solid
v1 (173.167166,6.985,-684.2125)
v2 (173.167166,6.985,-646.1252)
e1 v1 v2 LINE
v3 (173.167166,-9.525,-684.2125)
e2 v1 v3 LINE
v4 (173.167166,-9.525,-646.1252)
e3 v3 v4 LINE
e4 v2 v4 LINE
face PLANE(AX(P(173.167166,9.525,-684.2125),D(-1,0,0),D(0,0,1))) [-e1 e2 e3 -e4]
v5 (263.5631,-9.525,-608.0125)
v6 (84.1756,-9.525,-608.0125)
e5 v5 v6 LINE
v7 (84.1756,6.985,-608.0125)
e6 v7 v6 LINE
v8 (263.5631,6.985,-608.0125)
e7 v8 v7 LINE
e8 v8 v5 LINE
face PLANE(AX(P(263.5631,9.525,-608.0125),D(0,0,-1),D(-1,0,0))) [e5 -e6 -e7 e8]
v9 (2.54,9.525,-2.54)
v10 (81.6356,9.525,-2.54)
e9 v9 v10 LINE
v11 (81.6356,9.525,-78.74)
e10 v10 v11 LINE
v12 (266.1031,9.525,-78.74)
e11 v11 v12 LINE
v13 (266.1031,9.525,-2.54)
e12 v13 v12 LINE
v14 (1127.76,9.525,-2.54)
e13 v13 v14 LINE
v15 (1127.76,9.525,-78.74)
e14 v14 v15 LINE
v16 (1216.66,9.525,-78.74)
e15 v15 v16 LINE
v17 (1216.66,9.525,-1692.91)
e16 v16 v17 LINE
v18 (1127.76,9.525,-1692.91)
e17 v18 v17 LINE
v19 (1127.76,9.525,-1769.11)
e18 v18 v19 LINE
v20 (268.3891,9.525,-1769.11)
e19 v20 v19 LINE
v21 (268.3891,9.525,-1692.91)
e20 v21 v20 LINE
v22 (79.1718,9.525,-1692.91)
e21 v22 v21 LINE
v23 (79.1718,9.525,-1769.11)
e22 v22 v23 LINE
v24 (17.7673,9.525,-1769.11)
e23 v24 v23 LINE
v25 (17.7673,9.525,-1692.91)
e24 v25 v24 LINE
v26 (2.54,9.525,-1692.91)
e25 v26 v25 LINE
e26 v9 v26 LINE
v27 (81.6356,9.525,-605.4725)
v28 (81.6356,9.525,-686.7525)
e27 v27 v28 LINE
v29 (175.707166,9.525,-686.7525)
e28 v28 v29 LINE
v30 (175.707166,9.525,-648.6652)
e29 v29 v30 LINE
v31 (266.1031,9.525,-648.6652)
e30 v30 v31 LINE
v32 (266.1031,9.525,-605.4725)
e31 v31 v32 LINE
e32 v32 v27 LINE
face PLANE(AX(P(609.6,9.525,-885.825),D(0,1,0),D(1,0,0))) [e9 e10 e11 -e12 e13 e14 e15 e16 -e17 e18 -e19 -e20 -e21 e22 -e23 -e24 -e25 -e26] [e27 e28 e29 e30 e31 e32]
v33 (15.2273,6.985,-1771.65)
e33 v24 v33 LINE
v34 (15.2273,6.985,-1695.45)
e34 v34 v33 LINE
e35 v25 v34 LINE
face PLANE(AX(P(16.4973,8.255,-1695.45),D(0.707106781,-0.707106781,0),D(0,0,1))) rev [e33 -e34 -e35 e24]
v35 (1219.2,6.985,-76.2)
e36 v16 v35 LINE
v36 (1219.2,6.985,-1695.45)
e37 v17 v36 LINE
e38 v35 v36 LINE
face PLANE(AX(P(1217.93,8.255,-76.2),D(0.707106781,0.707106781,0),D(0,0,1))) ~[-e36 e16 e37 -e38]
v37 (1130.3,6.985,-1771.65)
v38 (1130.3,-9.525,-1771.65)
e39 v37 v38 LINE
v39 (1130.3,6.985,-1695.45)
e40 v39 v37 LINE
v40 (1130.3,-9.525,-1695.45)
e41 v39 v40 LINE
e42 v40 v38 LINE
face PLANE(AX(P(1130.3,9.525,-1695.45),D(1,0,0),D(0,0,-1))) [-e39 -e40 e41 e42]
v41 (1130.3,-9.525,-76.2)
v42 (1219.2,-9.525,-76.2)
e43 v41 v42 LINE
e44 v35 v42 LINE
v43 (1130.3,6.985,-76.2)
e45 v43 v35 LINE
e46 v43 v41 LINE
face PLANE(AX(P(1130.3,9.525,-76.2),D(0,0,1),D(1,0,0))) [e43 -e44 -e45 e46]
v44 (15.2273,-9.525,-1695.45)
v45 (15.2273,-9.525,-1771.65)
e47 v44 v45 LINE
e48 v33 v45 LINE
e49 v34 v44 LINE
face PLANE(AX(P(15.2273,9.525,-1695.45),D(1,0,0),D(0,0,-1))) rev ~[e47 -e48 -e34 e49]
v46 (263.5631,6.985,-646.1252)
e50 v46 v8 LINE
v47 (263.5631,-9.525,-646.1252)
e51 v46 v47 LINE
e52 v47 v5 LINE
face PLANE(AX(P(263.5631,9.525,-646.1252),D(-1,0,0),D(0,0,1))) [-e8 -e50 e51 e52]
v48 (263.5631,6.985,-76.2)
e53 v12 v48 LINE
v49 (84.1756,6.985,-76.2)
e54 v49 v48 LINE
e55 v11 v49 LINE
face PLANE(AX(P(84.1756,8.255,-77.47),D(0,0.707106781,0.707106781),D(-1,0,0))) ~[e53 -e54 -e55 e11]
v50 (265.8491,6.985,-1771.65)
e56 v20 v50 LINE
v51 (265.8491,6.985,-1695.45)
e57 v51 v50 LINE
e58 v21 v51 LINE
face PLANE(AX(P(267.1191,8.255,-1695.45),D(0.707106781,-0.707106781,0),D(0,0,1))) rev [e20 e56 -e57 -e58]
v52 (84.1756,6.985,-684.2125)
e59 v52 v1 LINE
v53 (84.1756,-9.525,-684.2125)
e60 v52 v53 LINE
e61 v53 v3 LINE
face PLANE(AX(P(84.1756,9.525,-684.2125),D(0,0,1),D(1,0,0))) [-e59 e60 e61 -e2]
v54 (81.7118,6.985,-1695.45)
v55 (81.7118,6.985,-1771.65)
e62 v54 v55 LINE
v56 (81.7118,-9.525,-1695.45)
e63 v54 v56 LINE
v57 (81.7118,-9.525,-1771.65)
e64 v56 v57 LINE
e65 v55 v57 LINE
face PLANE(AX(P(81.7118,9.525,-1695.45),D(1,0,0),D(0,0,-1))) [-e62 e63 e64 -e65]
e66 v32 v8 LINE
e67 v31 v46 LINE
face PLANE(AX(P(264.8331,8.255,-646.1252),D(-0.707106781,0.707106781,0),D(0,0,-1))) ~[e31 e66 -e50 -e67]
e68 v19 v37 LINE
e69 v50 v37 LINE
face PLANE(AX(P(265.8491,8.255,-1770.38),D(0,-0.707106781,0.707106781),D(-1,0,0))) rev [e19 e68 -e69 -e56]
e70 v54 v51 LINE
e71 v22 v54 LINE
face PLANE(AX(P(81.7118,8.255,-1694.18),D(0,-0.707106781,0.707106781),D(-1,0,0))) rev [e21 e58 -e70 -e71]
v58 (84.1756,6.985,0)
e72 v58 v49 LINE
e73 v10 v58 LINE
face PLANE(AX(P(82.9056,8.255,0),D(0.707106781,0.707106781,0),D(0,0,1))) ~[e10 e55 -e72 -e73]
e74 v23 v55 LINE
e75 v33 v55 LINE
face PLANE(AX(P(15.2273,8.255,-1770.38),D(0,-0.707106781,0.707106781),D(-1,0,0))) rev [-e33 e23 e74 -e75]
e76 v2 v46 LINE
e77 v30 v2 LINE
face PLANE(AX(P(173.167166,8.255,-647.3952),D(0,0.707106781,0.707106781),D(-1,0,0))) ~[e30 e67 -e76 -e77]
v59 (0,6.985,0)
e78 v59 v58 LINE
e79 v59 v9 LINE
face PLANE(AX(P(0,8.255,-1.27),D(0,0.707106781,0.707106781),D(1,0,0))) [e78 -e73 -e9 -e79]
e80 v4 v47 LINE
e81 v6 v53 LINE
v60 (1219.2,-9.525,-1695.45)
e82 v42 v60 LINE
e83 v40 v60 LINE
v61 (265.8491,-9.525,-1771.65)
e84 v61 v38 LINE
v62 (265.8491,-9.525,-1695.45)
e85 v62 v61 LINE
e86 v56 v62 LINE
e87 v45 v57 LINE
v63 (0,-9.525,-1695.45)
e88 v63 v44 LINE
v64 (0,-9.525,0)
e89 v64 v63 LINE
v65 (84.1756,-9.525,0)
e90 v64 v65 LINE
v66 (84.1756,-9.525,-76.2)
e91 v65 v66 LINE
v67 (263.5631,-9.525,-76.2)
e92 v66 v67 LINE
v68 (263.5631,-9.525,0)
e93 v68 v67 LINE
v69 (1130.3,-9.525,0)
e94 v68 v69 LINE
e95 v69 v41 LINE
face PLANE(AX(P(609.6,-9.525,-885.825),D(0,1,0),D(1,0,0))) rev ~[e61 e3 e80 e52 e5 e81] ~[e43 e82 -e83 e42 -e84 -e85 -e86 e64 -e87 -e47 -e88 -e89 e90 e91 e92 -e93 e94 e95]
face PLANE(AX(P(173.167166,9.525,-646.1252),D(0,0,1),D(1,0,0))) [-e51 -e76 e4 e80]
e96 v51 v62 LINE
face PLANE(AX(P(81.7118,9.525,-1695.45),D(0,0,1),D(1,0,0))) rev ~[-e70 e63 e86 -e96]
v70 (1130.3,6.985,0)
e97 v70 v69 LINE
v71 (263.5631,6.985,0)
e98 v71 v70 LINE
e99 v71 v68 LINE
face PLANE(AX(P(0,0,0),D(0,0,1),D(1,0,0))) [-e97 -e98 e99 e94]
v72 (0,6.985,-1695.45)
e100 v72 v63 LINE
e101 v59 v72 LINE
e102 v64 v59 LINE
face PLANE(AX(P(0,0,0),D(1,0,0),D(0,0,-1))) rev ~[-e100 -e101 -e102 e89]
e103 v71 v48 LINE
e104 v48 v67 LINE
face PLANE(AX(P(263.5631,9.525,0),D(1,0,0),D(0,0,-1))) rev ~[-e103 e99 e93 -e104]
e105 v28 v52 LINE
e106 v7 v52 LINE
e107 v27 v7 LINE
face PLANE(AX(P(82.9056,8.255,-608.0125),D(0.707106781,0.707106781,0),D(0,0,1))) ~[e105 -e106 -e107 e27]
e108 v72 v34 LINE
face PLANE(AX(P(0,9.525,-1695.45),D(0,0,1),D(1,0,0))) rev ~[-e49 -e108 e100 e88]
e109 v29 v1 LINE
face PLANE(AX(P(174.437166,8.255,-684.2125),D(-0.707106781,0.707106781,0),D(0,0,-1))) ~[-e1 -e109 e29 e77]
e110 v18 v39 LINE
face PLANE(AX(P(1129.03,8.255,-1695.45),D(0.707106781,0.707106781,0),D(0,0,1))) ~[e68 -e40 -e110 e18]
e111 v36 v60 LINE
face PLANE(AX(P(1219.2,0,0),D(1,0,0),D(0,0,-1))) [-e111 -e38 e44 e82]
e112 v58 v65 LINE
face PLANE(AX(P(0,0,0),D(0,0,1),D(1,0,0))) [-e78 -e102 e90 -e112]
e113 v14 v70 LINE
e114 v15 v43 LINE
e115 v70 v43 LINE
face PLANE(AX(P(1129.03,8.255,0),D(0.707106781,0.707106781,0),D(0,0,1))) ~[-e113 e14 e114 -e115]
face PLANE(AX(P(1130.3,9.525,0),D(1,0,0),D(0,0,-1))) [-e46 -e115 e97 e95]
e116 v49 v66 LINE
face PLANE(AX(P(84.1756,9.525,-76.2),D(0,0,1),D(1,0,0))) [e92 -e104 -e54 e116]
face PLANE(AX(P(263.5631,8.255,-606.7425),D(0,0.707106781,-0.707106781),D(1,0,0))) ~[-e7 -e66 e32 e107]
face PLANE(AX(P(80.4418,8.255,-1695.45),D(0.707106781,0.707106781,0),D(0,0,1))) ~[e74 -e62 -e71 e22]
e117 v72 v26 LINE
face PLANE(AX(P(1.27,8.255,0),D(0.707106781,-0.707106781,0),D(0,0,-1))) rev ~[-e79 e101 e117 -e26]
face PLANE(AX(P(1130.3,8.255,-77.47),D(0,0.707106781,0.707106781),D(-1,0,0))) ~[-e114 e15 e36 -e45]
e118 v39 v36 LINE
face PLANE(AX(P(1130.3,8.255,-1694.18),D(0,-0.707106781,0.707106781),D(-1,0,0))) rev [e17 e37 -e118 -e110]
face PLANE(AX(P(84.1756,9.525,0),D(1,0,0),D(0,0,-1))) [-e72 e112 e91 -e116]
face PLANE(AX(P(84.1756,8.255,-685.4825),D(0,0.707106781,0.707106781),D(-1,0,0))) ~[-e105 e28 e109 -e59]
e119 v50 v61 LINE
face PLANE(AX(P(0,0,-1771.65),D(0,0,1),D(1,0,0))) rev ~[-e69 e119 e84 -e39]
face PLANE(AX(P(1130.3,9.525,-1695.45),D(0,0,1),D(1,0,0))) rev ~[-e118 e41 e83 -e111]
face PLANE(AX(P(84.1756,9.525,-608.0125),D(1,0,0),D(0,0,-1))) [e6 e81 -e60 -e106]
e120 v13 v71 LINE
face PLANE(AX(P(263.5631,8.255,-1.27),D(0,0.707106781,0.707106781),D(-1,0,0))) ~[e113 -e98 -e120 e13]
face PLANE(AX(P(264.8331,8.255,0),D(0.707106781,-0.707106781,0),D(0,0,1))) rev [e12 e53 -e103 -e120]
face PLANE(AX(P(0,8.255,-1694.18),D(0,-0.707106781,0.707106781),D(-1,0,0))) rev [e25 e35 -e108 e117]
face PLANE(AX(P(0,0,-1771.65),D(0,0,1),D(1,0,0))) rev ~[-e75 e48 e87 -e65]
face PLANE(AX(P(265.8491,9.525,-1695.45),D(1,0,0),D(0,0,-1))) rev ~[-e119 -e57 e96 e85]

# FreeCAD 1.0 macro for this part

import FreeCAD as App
import Part
import Sketcher
from FreeCAD import Vector
Q = App.Units.Quantity


def edges_at(feature, points):
    """Names of the edges that pass closest to the given points."""
    edges = feature.Shape.Edges
    near = lambda p: min(range(len(edges)), key=lambda i: edges[i].distToShape(Part.Vertex(*p))[0])
    return sorted({f"Edge{near(p) + 1}" for p in points})

doc = App.newDocument("Part")
body = doc.addObject("PartDesign::Body", "Body")

sketch1 = doc.addObject("Sketcher::SketchObject", "Sketch")
body.addObject(sketch1)
sketch1.AttachmentSupport = (doc.XZ_Plane, [""])
sketch1.MapMode = "FlatFace"
sketch1.addGeometry(Part.LineSegment(Vector(0, -1772, 0), Vector(0, 0, 0)), False)
sketch1.addGeometry(Part.LineSegment(Vector(0, 0, 0), Vector(1219, 0, 0)), False)
sketch1.addGeometry(Part.LineSegment(Vector(1219, 0, 0), Vector(1219, -1772, 0)), False)
sketch1.addGeometry(Part.LineSegment(Vector(1219, -1772, 0), Vector(0, -1772, 0)), False)
sketch1.addConstraint(Sketcher.Constraint("Coincident", 0, 2, 1, 1))
sketch1.addConstraint(Sketcher.Constraint("Coincident", 1, 2, 2, 1))
sketch1.addConstraint(Sketcher.Constraint("Coincident", 2, 2, 3, 1))
sketch1.addConstraint(Sketcher.Constraint("Coincident", 3, 2, 0, 1))
sketch1.addConstraint(Sketcher.Constraint("Vertical", 0))
sketch1.addConstraint(Sketcher.Constraint("Horizontal", 1))
sketch1.addConstraint(Sketcher.Constraint("Vertical", 2))
sketch1.addConstraint(Sketcher.Constraint("Horizontal", 3))
sketch1.addConstraint(Sketcher.Constraint("Coincident", 0, 2, -1, 1))
sketch1.addConstraint(Sketcher.Constraint("DistanceX", 1, 1, 1, 2, Q("48 in")))
sketch1.addConstraint(Sketcher.Constraint("DistanceY", 0, 1, 0, 2, Q("69.75 in")))
pad1 = doc.addObject("PartDesign::Pad", "Pad")
body.addObject(pad1)
pad1.Profile = sketch1
pad1.Length = Q("0.75 in")
pad1.Midplane = True

sketch2 = doc.addObject("Sketcher::SketchObject", "Sketch001")
body.addObject(sketch2)
sketch2.AttachmentSupport = (doc.XZ_Plane, [""])
sketch2.MapMode = "FlatFace"
sketch2.AttachmentOffset = App.Placement(Vector(0, 0, -0.375 * 25.4), App.Rotation())
sketch2.addGeometry(Part.LineSegment(Vector(82, -1772, 0), Vector(82, -1695, 0)), False)
sketch2.addGeometry(Part.LineSegment(Vector(82, -1695, 0), Vector(266, -1695, 0)), False)
sketch2.addGeometry(Part.LineSegment(Vector(266, -1695, 0), Vector(266, -1772, 0)), False)
sketch2.addGeometry(Part.LineSegment(Vector(266, -1772, 0), Vector(82, -1772, 0)), False)
sketch2.addGeometry(Part.LineSegment(Vector(1130, -1772, 0), Vector(1130, -1695, 0)), False)
sketch2.addGeometry(Part.LineSegment(Vector(1130, -1695, 0), Vector(1219, -1695, 0)), False)
sketch2.addGeometry(Part.LineSegment(Vector(1219, -1695, 0), Vector(1219, -1772, 0)), False)
sketch2.addGeometry(Part.LineSegment(Vector(1219, -1772, 0), Vector(1130, -1772, 0)), False)
sketch2.addGeometry(Part.LineSegment(Vector(173, -684, 0), Vector(84, -684, 0)), False)
sketch2.addGeometry(Part.LineSegment(Vector(84, -684, 0), Vector(84, -608, 0)), False)
sketch2.addGeometry(Part.LineSegment(Vector(84, -608, 0), Vector(264, -608, 0)), False)
sketch2.addGeometry(Part.LineSegment(Vector(264, -608, 0), Vector(264, -646, 0)), False)
sketch2.addGeometry(Part.LineSegment(Vector(264, -646, 0), Vector(173, -646, 0)), False)
sketch2.addGeometry(Part.LineSegment(Vector(173, -646, 0), Vector(173, -684, 0)), False)
sketch2.addGeometry(Part.LineSegment(Vector(84, -76, 0), Vector(84, 0, 0)), False)
sketch2.addGeometry(Part.LineSegment(Vector(84, 0, 0), Vector(264, 0, 0)), False)
sketch2.addGeometry(Part.LineSegment(Vector(264, 0, 0), Vector(264, -76, 0)), False)
sketch2.addGeometry(Part.LineSegment(Vector(264, -76, 0), Vector(84, -76, 0)), False)
sketch2.addGeometry(Part.LineSegment(Vector(1130, -76, 0), Vector(1130, 0, 0)), False)
sketch2.addGeometry(Part.LineSegment(Vector(1130, 0, 0), Vector(1219, 0, 0)), False)
sketch2.addGeometry(Part.LineSegment(Vector(1219, 0, 0), Vector(1219, -76, 0)), False)
sketch2.addGeometry(Part.LineSegment(Vector(1219, -76, 0), Vector(1130, -76, 0)), False)
sketch2.addGeometry(Part.LineSegment(Vector(0, -1772, 0), Vector(0, -1695, 0)), False)
sketch2.addGeometry(Part.LineSegment(Vector(0, -1695, 0), Vector(15, -1695, 0)), False)
sketch2.addGeometry(Part.LineSegment(Vector(15, -1695, 0), Vector(15, -1772, 0)), False)
sketch2.addGeometry(Part.LineSegment(Vector(15, -1772, 0), Vector(0, -1772, 0)), False)
sketch2.addConstraint(Sketcher.Constraint("Coincident", 0, 2, 1, 1))
sketch2.addConstraint(Sketcher.Constraint("Coincident", 1, 2, 2, 1))
sketch2.addConstraint(Sketcher.Constraint("Coincident", 2, 2, 3, 1))
sketch2.addConstraint(Sketcher.Constraint("Coincident", 3, 2, 0, 1))
sketch2.addConstraint(Sketcher.Constraint("Coincident", 4, 2, 5, 1))
sketch2.addConstraint(Sketcher.Constraint("Coincident", 5, 2, 6, 1))
sketch2.addConstraint(Sketcher.Constraint("Coincident", 6, 2, 7, 1))
sketch2.addConstraint(Sketcher.Constraint("Coincident", 7, 2, 4, 1))
sketch2.addConstraint(Sketcher.Constraint("Coincident", 8, 2, 9, 1))
sketch2.addConstraint(Sketcher.Constraint("Coincident", 9, 2, 10, 1))
sketch2.addConstraint(Sketcher.Constraint("Coincident", 10, 2, 11, 1))
sketch2.addConstraint(Sketcher.Constraint("Coincident", 11, 2, 12, 1))
sketch2.addConstraint(Sketcher.Constraint("Coincident", 12, 2, 13, 1))
sketch2.addConstraint(Sketcher.Constraint("Coincident", 13, 2, 8, 1))
sketch2.addConstraint(Sketcher.Constraint("Coincident", 14, 2, 15, 1))
sketch2.addConstraint(Sketcher.Constraint("Coincident", 15, 2, 16, 1))
sketch2.addConstraint(Sketcher.Constraint("Coincident", 16, 2, 17, 1))
sketch2.addConstraint(Sketcher.Constraint("Coincident", 17, 2, 14, 1))
sketch2.addConstraint(Sketcher.Constraint("Coincident", 18, 2, 19, 1))
sketch2.addConstraint(Sketcher.Constraint("Coincident", 19, 2, 20, 1))
sketch2.addConstraint(Sketcher.Constraint("Coincident", 20, 2, 21, 1))
sketch2.addConstraint(Sketcher.Constraint("Coincident", 21, 2, 18, 1))
sketch2.addConstraint(Sketcher.Constraint("Coincident", 22, 2, 23, 1))
sketch2.addConstraint(Sketcher.Constraint("Coincident", 23, 2, 24, 1))
sketch2.addConstraint(Sketcher.Constraint("Coincident", 24, 2, 25, 1))
sketch2.addConstraint(Sketcher.Constraint("Coincident", 25, 2, 22, 1))
sketch2.addConstraint(Sketcher.Constraint("Vertical", 0))
sketch2.addConstraint(Sketcher.Constraint("Horizontal", 1))
sketch2.addConstraint(Sketcher.Constraint("Vertical", 2))
sketch2.addConstraint(Sketcher.Constraint("Horizontal", 3))
sketch2.addConstraint(Sketcher.Constraint("Vertical", 4))
sketch2.addConstraint(Sketcher.Constraint("Horizontal", 5))
sketch2.addConstraint(Sketcher.Constraint("Vertical", 6))
sketch2.addConstraint(Sketcher.Constraint("Horizontal", 7))
sketch2.addConstraint(Sketcher.Constraint("Horizontal", 8))
sketch2.addConstraint(Sketcher.Constraint("Vertical", 9))
sketch2.addConstraint(Sketcher.Constraint("Horizontal", 10))
sketch2.addConstraint(Sketcher.Constraint("Vertical", 11))
sketch2.addConstraint(Sketcher.Constraint("Horizontal", 12))
sketch2.addConstraint(Sketcher.Constraint("Vertical", 13))
sketch2.addConstraint(Sketcher.Constraint("Vertical", 14))
sketch2.addConstraint(Sketcher.Constraint("Horizontal", 15))
sketch2.addConstraint(Sketcher.Constraint("Vertical", 16))
sketch2.addConstraint(Sketcher.Constraint("Horizontal", 17))
sketch2.addConstraint(Sketcher.Constraint("Vertical", 18))
sketch2.addConstraint(Sketcher.Constraint("Horizontal", 19))
sketch2.addConstraint(Sketcher.Constraint("Vertical", 20))
sketch2.addConstraint(Sketcher.Constraint("Horizontal", 21))
sketch2.addConstraint(Sketcher.Constraint("Vertical", 22))
sketch2.addConstraint(Sketcher.Constraint("Horizontal", 23))
sketch2.addConstraint(Sketcher.Constraint("Vertical", 24))
sketch2.addConstraint(Sketcher.Constraint("Horizontal", 25))
sketch2.addConstraint(Sketcher.Constraint("PointOnObject", 14, 2, -1))
sketch2.addConstraint(Sketcher.Constraint("PointOnObject", 18, 2, -1))
sketch2.addConstraint(Sketcher.Constraint("PointOnObject", 22, 2, -2))
sketch2.addConstraint(Sketcher.Constraint("Horizontal", 1, 2, 4, 2))
sketch2.addConstraint(Sketcher.Constraint("Horizontal", 3, 2, 6, 2))
sketch2.addConstraint(Sketcher.Constraint("Horizontal", 17, 2, 20, 2))
sketch2.addConstraint(Sketcher.Constraint("Horizontal", 5, 2, 22, 2))
sketch2.addConstraint(Sketcher.Constraint("Horizontal", 7, 2, 24, 2))
sketch2.addConstraint(Sketcher.Constraint("Vertical", 9, 2, 14, 2))
sketch2.addConstraint(Sketcher.Constraint("Vertical", 11, 2, 15, 2))
sketch2.addConstraint(Sketcher.Constraint("Vertical", 7, 2, 18, 2))
sketch2.addConstraint(Sketcher.Constraint("Vertical", 6, 2, 19, 2))
sketch2.addConstraint(Sketcher.Constraint("Equal", 6, 9))
sketch2.addConstraint(Sketcher.Constraint("Equal", 9, 14))
sketch2.addConstraint(Sketcher.Constraint("DistanceY", 0, 1, 0, 2, Q("3 in")))
sketch2.addConstraint(Sketcher.Constraint("DistanceX", 5, 1, 5, 2, Q("3.5 in")))
sketch2.addConstraint(Sketcher.Constraint("DistanceX", -1, 1, 5, 2, Q("48 in")))
sketch2.addConstraint(Sketcher.Constraint("DistanceX", 10, 1, 10, 2, Q("7.0625 in")))
sketch2.addConstraint(Sketcher.Constraint("DistanceY", 0, 2, -1, 1, Q("66.75 in")))
sketch2.addConstraint(Sketcher.Constraint("DistanceX", 10, 2, 1, 2, Q("0.09 in")))
sketch2.addConstraint(Sketcher.Constraint("DistanceX", 1, 1, 1, 2, Q("7.2495 in")))
sketch2.addConstraint(Sketcher.Constraint("DistanceX", 23, 1, 23, 2, Q("0.5995 in")))
sketch2.addConstraint(Sketcher.Constraint("DistanceY", 11, 2, 11, 1, Q("1.5005 in")))
sketch2.addConstraint(Sketcher.Constraint("DistanceX", -1, 1, 0, 2, Q("3.217 in")))
sketch2.addConstraint(Sketcher.Constraint("DistanceY", 8, 2, -1, 1, Q("26.9375 in")))
sketch2.addConstraint(Sketcher.Constraint("DistanceX", 8, 2, 8, 1, 88.991566))
pocket1 = doc.addObject("PartDesign::Pocket", "Pocket")
body.addObject(pocket1)
pocket1.Profile = sketch2
pocket1.Type = "ThroughAll"
pocket1.Reversed = True
doc.recompute()

chamfer = doc.addObject("PartDesign::Chamfer", "Chamfer")
body.addObject(chamfer)
chamfer.Base = (pocket1, edges_at(pocket1, [
    (0, 9.525, -847.725),
    (696.932, 9.525, 0),
    (1219.2, 9.525, -885.825),
    (698.075, 9.525, -1771.65),
    (48.47, 9.525, -1771.65),
    (7.614, 9.525, -1695.45),
    (15.227, 9.525, -1733.55),
    (1174.75, 9.525, -76.2),
    (1130.3, 9.525, -38.1),
    (263.563, 9.525, -38.1),
    (173.869, 9.525, -76.2),
    (84.176, 9.525, -38.1),
    (84.176, 9.525, -646.112),
    (173.869, 9.525, -608.012),
    (263.563, 9.525, -627.069),
    (218.365, 9.525, -646.125),
    (173.167, 9.525, -665.169),
    (128.671, 9.525, -684.212),
    (1130.3, 9.525, -1733.55),
    (1174.75, 9.525, -1695.45),
    (81.712, 9.525, -1733.55),
    (173.78, 9.525, -1695.45),
    (265.849, 9.525, -1733.55),
    (42.088, 9.525, 0),
]))
chamfer.Size = Q("0.1 in")

doc.recompute()
